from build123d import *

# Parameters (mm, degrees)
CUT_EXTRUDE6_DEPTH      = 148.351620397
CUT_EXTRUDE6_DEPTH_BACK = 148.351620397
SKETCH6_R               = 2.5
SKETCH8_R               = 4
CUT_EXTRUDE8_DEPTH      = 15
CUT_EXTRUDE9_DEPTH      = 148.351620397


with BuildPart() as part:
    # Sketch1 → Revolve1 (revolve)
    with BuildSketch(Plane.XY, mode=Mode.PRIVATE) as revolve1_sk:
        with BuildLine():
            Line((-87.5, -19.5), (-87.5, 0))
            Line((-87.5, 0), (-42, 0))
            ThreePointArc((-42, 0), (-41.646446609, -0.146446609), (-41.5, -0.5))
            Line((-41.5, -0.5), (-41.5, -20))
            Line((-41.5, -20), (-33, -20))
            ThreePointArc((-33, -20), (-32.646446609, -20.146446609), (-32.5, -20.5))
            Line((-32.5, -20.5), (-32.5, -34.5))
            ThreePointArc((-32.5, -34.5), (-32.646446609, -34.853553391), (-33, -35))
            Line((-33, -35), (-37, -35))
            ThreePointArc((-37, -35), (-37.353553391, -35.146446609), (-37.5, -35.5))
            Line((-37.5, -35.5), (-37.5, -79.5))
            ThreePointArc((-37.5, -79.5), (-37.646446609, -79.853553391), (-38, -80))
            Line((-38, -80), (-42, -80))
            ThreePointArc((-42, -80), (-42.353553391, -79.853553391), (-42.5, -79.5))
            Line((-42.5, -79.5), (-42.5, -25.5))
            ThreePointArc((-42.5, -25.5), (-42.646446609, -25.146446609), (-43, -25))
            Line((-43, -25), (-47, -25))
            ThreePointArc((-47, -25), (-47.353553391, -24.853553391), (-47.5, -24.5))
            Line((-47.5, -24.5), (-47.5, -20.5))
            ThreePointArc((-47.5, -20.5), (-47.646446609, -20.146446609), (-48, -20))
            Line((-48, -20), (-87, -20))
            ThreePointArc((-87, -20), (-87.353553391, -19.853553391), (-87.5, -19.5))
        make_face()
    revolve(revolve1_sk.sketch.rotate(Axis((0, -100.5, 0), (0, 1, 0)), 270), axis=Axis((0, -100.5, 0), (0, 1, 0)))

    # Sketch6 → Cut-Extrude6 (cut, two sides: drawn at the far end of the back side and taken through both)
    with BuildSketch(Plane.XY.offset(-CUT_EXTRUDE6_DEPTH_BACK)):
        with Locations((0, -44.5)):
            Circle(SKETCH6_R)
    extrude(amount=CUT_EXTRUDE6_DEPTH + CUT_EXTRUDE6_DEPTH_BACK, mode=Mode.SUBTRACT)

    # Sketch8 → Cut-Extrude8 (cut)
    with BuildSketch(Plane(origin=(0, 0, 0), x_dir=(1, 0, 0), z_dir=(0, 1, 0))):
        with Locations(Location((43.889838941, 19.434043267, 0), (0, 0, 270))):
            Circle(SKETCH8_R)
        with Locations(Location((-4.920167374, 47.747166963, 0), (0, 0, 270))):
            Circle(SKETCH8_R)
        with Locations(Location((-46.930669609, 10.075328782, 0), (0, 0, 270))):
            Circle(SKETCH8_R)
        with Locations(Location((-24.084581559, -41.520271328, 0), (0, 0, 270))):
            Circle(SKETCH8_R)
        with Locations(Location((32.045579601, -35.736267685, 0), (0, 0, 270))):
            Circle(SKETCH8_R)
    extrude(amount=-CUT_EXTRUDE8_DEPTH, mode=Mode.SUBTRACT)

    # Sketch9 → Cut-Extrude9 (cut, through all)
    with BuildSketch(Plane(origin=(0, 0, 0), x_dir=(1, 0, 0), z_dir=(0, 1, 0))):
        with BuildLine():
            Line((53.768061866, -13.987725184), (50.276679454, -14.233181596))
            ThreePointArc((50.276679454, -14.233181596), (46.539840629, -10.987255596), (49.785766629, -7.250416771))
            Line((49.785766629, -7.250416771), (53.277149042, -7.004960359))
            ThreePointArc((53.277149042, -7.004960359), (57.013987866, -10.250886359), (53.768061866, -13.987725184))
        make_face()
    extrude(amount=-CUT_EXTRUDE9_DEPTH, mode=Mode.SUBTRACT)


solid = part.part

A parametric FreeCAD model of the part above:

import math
import FreeCAD as App
import Part
import Sketcher

doc = App.newDocument("Part")
body = doc.addObject("PartDesign::Body", "Body")

# Sketch on XY plane
sketch1 = body.newObject("Sketcher::SketchObject", "Sketch")
sketch1.AttachmentSupport = (doc.getObject("XY_Plane"), [""])
sketch1.MapMode = "FlatFace"
sketch1.addGeometry(Part.LineSegment(App.Vector(-87.5, 0, 0), App.Vector(-87.5, -19.5, 0)), False)
sketch1.addGeometry(Part.ArcOfCircle(Part.Circle(App.Vector(-87, -19.5, 0), App.Vector(0, 0, 1), 0.5), math.radians(180), math.radians(270)), False)
sketch1.addGeometry(Part.LineSegment(App.Vector(-87, -20, 0), App.Vector(-48, -20, 0)), False)
sketch1.addGeometry(Part.ArcOfCircle(Part.Circle(App.Vector(-48, -20.5, 0), App.Vector(0, 0, 1), 0.5), math.radians(0), math.radians(90)), False)
sketch1.addGeometry(Part.LineSegment(App.Vector(-47.5, -20.5, 0), App.Vector(-47.5, -24.5, 0)), False)
sketch1.addGeometry(Part.ArcOfCircle(Part.Circle(App.Vector(-47, -24.5, 0), App.Vector(0, 0, 1), 0.5), math.radians(180), math.radians(270)), False)
sketch1.addGeometry(Part.LineSegment(App.Vector(-47, -25, 0), App.Vector(-43, -25, 0)), False)
sketch1.addGeometry(Part.ArcOfCircle(Part.Circle(App.Vector(-43, -25.5, 0), App.Vector(0, 0, 1), 0.5), math.radians(0), math.radians(90)), False)
sketch1.addGeometry(Part.LineSegment(App.Vector(-42.5, -25.5, 0), App.Vector(-42.5, -79.5, 0)), False)
sketch1.addGeometry(Part.ArcOfCircle(Part.Circle(App.Vector(-42, -79.5, 0), App.Vector(0, 0, 1), 0.5), math.radians(180), math.radians(270)), False)
sketch1.addGeometry(Part.LineSegment(App.Vector(-42, -80, 0), App.Vector(-38, -80, 0)), False)
sketch1.addGeometry(Part.ArcOfCircle(Part.Circle(App.Vector(-38, -79.5, 0), App.Vector(0, 0, 1), 0.5), math.radians(-90), math.radians(0)), False)
sketch1.addGeometry(Part.LineSegment(App.Vector(-37.5, -79.5, 0), App.Vector(-37.5, -35.5, 0)), False)
sketch1.addGeometry(Part.ArcOfCircle(Part.Circle(App.Vector(-37, -35.5, 0), App.Vector(0, 0, 1), 0.5), math.radians(90), math.radians(180)), False)
sketch1.addGeometry(Part.LineSegment(App.Vector(-37, -35, 0), App.Vector(-33, -35, 0)), False)
sketch1.addGeometry(Part.ArcOfCircle(Part.Circle(App.Vector(-33, -34.5, 0), App.Vector(0, 0, 1), 0.5), math.radians(-90), math.radians(0)), False)
sketch1.addGeometry(Part.LineSegment(App.Vector(-32.5, -34.5, 0), App.Vector(-32.5, -20.5, 0)), False)
sketch1.addGeometry(Part.ArcOfCircle(Part.Circle(App.Vector(-33, -20.5, 0), App.Vector(0, 0, 1), 0.5), math.radians(0), math.radians(90)), False)
sketch1.addGeometry(Part.LineSegment(App.Vector(-33, -20, 0), App.Vector(-41.5, -20, 0)), False)
sketch1.addGeometry(Part.LineSegment(App.Vector(-41.5, -20, 0), App.Vector(-41.5, -0.5, 0)), False)
sketch1.addGeometry(Part.ArcOfCircle(Part.Circle(App.Vector(-42, -0.5, 0), App.Vector(0, 0, 1), 0.5), math.radians(0), math.radians(90)), False)
sketch1.addGeometry(Part.LineSegment(App.Vector(-42, 0, 0), App.Vector(-87.5, 0, 0)), False)
sketch1.addConstraint(Sketcher.Constraint("Tangent", 0, 2, 1, 1))
sketch1.addConstraint(Sketcher.Constraint("Tangent", 1, 2, 2, 1))
sketch1.addConstraint(Sketcher.Constraint("Tangent", 2, 2, 3, 2))
sketch1.addConstraint(Sketcher.Constraint("Tangent", 3, 1, 4, 1))
sketch1.addConstraint(Sketcher.Constraint("Tangent", 4, 2, 5, 1))
sketch1.addConstraint(Sketcher.Constraint("Tangent", 5, 2, 6, 1))
sketch1.addConstraint(Sketcher.Constraint("Tangent", 6, 2, 7, 2))
sketch1.addConstraint(Sketcher.Constraint("Tangent", 7, 1, 8, 1))
sketch1.addConstraint(Sketcher.Constraint("Tangent", 8, 2, 9, 1))
sketch1.addConstraint(Sketcher.Constraint("Tangent", 9, 2, 10, 1))
sketch1.addConstraint(Sketcher.Constraint("Tangent", 10, 2, 11, 1))
sketch1.addConstraint(Sketcher.Constraint("Tangent", 11, 2, 12, 1))
sketch1.addConstraint(Sketcher.Constraint("Tangent", 12, 2, 13, 2))
sketch1.addConstraint(Sketcher.Constraint("Tangent", 13, 1, 14, 1))
sketch1.addConstraint(Sketcher.Constraint("Tangent", 14, 2, 15, 1))
sketch1.addConstraint(Sketcher.Constraint("Tangent", 15, 2, 16, 1))
sketch1.addConstraint(Sketcher.Constraint("Tangent", 16, 2, 17, 1))
sketch1.addConstraint(Sketcher.Constraint("Tangent", 17, 2, 18, 1))
sketch1.addConstraint(Sketcher.Constraint("Coincident", 18, 2, 19, 1))
sketch1.addConstraint(Sketcher.Constraint("Tangent", 19, 2, 20, 1))
sketch1.addConstraint(Sketcher.Constraint("Tangent", 20, 2, 21, 1))
sketch1.addConstraint(Sketcher.Constraint("Coincident", 21, 2, 0, 1))
sketch1.addConstraint(Sketcher.Constraint("Vertical", 0))
sketch1.addConstraint(Sketcher.Constraint("Horizontal", 2))
sketch1.addConstraint(Sketcher.Constraint("Vertical", 4))
sketch1.addConstraint(Sketcher.Constraint("Horizontal", 6))
sketch1.addConstraint(Sketcher.Constraint("Vertical", 8))
sketch1.addConstraint(Sketcher.Constraint("Horizontal", 10))
sketch1.addConstraint(Sketcher.Constraint("Vertical", 12))
sketch1.addConstraint(Sketcher.Constraint("Horizontal", 14))
sketch1.addConstraint(Sketcher.Constraint("Vertical", 16))
sketch1.addConstraint(Sketcher.Constraint("Horizontal", 18))
sketch1.addConstraint(Sketcher.Constraint("Vertical", 19))
sketch1.addConstraint(Sketcher.Constraint("Horizontal", 21))
sketch1.addConstraint(Sketcher.Constraint("Equal", 1, 3))
sketch1.addConstraint(Sketcher.Constraint("Equal", 3, 5))
sketch1.addConstraint(Sketcher.Constraint("Equal", 5, 7))
sketch1.addConstraint(Sketcher.Constraint("Equal", 7, 9))
sketch1.addConstraint(Sketcher.Constraint("Equal", 9, 11))
sketch1.addConstraint(Sketcher.Constraint("Equal", 11, 13))
sketch1.addConstraint(Sketcher.Constraint("Equal", 13, 15))
sketch1.addConstraint(Sketcher.Constraint("Equal", 15, 17))
sketch1.addConstraint(Sketcher.Constraint("Equal", 17, 20))
sketch1.addConstraint(Sketcher.Constraint("PointOnObject", 20, 2, -1))
sketch1.addConstraint(Sketcher.Constraint("Horizontal", 3, 3, 17, 3))
sketch1.addConstraint(Sketcher.Constraint("Vertical", 9, 3, 20, 3))
sketch1.addConstraint(Sketcher.Constraint("Equal", 6, 10))
sketch1.addConstraint(Sketcher.Constraint("Equal", 10, 14))
sketch1.addConstraint(Sketcher.Constraint("Equal", 14, 4))
sketch1.addConstraint(Sketcher.Constraint("Radius", 1, 0.5))
sketch1.addConstraint(Sketcher.Constraint("DistanceX", 2, 1, 2, 2, 39.0))
sketch1.addConstraint(Sketcher.Constraint("DistanceX", 6, 1, 6, 2, 4.0))
sketch1.addConstraint(Sketcher.Constraint("DistanceY", 8, 2, 8, 1, 54.0))
sketch1.addConstraint(Sketcher.Constraint("DistanceY", 12, 1, 12, 2, 44.0))
sketch1.addConstraint(Sketcher.Constraint("DistanceY", 0, 2, 0, 1, 19.5))
sketch1.addConstraint(Sketcher.Constraint("DistanceX", 1, 3, -1, 1, 87.0))
revolution = body.newObject("PartDesign::Revolution", "Revolution")
revolution.Profile = sketch1
revolution.ReferenceAxis = (sketch1, ["V_Axis"])
revolution.Angle = 360

# Sketch on XY plane
sketch2 = body.newObject("Sketcher::SketchObject", "Sketch001")
sketch2.AttachmentSupport = (doc.getObject("XY_Plane"), [""])
sketch2.MapMode = "FlatFace"
sketch2.addGeometry(Part.Circle(App.Vector(0, -44.5, 0), App.Vector(0, 0, 1), 2.5), False)
sketch2.addConstraint(Sketcher.Constraint("PointOnObject", 0, 3, -2))
sketch2.addConstraint(Sketcher.Constraint("Diameter", 0, 5.0))
sketch2.addConstraint(Sketcher.Constraint("DistanceY", 0, 3, -1, 1, 44.5))
pocket1 = body.newObject("PartDesign::Pocket", "Pocket")
pocket1.Profile = sketch2
pocket1.Type = "ThroughAll"
pocket1.Midplane = True

# Sketch on XZ plane
sketch3 = body.newObject("Sketcher::SketchObject", "Sketch002")
sketch3.AttachmentSupport = (doc.getObject("XZ_Plane"), [""])
sketch3.MapMode = "FlatFace"
sketch3.addGeometry(Part.Circle(App.Vector(43.9, -19.4, 0), App.Vector(0, 0, 1), 4), False)
sketch3.addGeometry(Part.Circle(App.Vector(-4.9, -47.7, 0), App.Vector(0, 0, 1), 4), False)
sketch3.addGeometry(Part.Circle(App.Vector(-46.9, -10.1, 0), App.Vector(0, 0, 1), 4), False)
sketch3.addGeometry(Part.Circle(App.Vector(-24.1, 41.5, 0), App.Vector(0, 0, 1), 4), False)
sketch3.addGeometry(Part.Circle(App.Vector(32, 35.7, 0), App.Vector(0, 0, 1), 4), False)
sketch3.addConstraint(Sketcher.Constraint("Equal", 0, 1))
sketch3.addConstraint(Sketcher.Constraint("Equal", 1, 2))
sketch3.addConstraint(Sketcher.Constraint("Equal", 2, 3))
sketch3.addConstraint(Sketcher.Constraint("Equal", 3, 4))
sketch3.addConstraint(Sketcher.Constraint("Diameter", 0, 8.0))
sketch3.addConstraint(Sketcher.Constraint("DistanceY", 2, 3, 3, 3, 51.5956))
sketch3.addConstraint(Sketcher.Constraint("DistanceX", -1, 1, 0, 3, 43.889839))
sketch3.addConstraint(Sketcher.Constraint("DistanceX", 2, 3, -1, 1, 46.93067))
sketch3.addConstraint(Sketcher.Constraint("DistanceY", 2, 3, -1, 1, 10.075329))
sketch3.addConstraint(Sketcher.Constraint("DistanceX", 3, 3, -1, 1, 24.084582))
sketch3.addConstraint(Sketcher.Constraint("DistanceX", -1, 1, 4, 3, 32.04558))
sketch3.addConstraint(Sketcher.Constraint("DistanceY", 1, 3, 2, 3, 37.671838))
sketch3.addConstraint(Sketcher.Constraint("DistanceY", 0, 3, 4, 3, 55.170311))
sketch3.addConstraint(Sketcher.Constraint("DistanceY", 0, 3, -1, 1, 19.434043))
sketch3.addConstraint(Sketcher.Constraint("DistanceX", 1, 3, -1, 1, 4.920167))
pocket2 = body.newObject("PartDesign::Pocket", "Pocket001")
pocket2.Profile = sketch3
pocket2.Length = 15
pocket2.Reversed = True

# Sketch on XZ plane
sketch4 = body.newObject("Sketcher::SketchObject", "Sketch003")
sketch4.AttachmentSupport = (doc.getObject("XZ_Plane"), [""])
sketch4.MapMode = "FlatFace"
sketch4.addGeometry(Part.LineSegment(App.Vector(50.3, 14.2, 0), App.Vector(53.8, 14, 0)), False)
sketch4.addGeometry(Part.ArcOfCircle(Part.Circle(App.Vector(53.5, 10.5, 0), App.Vector(0, 0, 1), 3.5), math.radians(-94), math.radians(86)), False)
sketch4.addGeometry(Part.LineSegment(App.Vector(53.3, 7, 0), App.Vector(49.8, 7.3, 0)), False)
sketch4.addGeometry(Part.ArcOfCircle(Part.Circle(App.Vector(50, 10.7, 0), App.Vector(0, 0, 1), 3.5), math.radians(86), math.radians(266)), False)
sketch4.addConstraint(Sketcher.Constraint("Tangent", 0, 2, 1, 2))
sketch4.addConstraint(Sketcher.Constraint("Tangent", 1, 1, 2, 1))
sketch4.addConstraint(Sketcher.Constraint("Tangent", 2, 2, 3, 2))
sketch4.addConstraint(Sketcher.Constraint("Tangent", 3, 1, 0, 1))
sketch4.addConstraint(Sketcher.Constraint("Equal", 1, 3))
sketch4.addConstraint(Sketcher.Constraint("Radius", 1, 3.5))
sketch4.addConstraint(Sketcher.Constraint("Distance", 0, 3.5))
sketch4.addConstraint(Sketcher.Constraint("DistanceY", -1, 1, 3, 3, 10.741799))
sketch4.addConstraint(Sketcher.Constraint("DistanceX", -1, 1, 0, 2, 53.768062))
sketch4.addConstraint(Sketcher.Constraint("DistanceX", -1, 1, 1, 1, 53.277149))
pocket3 = body.newObject("PartDesign::Pocket", "Pocket002")
pocket3.Profile = sketch4
pocket3.Type = "ThroughAll"
pocket3.Reversed = True

doc.recompute()
